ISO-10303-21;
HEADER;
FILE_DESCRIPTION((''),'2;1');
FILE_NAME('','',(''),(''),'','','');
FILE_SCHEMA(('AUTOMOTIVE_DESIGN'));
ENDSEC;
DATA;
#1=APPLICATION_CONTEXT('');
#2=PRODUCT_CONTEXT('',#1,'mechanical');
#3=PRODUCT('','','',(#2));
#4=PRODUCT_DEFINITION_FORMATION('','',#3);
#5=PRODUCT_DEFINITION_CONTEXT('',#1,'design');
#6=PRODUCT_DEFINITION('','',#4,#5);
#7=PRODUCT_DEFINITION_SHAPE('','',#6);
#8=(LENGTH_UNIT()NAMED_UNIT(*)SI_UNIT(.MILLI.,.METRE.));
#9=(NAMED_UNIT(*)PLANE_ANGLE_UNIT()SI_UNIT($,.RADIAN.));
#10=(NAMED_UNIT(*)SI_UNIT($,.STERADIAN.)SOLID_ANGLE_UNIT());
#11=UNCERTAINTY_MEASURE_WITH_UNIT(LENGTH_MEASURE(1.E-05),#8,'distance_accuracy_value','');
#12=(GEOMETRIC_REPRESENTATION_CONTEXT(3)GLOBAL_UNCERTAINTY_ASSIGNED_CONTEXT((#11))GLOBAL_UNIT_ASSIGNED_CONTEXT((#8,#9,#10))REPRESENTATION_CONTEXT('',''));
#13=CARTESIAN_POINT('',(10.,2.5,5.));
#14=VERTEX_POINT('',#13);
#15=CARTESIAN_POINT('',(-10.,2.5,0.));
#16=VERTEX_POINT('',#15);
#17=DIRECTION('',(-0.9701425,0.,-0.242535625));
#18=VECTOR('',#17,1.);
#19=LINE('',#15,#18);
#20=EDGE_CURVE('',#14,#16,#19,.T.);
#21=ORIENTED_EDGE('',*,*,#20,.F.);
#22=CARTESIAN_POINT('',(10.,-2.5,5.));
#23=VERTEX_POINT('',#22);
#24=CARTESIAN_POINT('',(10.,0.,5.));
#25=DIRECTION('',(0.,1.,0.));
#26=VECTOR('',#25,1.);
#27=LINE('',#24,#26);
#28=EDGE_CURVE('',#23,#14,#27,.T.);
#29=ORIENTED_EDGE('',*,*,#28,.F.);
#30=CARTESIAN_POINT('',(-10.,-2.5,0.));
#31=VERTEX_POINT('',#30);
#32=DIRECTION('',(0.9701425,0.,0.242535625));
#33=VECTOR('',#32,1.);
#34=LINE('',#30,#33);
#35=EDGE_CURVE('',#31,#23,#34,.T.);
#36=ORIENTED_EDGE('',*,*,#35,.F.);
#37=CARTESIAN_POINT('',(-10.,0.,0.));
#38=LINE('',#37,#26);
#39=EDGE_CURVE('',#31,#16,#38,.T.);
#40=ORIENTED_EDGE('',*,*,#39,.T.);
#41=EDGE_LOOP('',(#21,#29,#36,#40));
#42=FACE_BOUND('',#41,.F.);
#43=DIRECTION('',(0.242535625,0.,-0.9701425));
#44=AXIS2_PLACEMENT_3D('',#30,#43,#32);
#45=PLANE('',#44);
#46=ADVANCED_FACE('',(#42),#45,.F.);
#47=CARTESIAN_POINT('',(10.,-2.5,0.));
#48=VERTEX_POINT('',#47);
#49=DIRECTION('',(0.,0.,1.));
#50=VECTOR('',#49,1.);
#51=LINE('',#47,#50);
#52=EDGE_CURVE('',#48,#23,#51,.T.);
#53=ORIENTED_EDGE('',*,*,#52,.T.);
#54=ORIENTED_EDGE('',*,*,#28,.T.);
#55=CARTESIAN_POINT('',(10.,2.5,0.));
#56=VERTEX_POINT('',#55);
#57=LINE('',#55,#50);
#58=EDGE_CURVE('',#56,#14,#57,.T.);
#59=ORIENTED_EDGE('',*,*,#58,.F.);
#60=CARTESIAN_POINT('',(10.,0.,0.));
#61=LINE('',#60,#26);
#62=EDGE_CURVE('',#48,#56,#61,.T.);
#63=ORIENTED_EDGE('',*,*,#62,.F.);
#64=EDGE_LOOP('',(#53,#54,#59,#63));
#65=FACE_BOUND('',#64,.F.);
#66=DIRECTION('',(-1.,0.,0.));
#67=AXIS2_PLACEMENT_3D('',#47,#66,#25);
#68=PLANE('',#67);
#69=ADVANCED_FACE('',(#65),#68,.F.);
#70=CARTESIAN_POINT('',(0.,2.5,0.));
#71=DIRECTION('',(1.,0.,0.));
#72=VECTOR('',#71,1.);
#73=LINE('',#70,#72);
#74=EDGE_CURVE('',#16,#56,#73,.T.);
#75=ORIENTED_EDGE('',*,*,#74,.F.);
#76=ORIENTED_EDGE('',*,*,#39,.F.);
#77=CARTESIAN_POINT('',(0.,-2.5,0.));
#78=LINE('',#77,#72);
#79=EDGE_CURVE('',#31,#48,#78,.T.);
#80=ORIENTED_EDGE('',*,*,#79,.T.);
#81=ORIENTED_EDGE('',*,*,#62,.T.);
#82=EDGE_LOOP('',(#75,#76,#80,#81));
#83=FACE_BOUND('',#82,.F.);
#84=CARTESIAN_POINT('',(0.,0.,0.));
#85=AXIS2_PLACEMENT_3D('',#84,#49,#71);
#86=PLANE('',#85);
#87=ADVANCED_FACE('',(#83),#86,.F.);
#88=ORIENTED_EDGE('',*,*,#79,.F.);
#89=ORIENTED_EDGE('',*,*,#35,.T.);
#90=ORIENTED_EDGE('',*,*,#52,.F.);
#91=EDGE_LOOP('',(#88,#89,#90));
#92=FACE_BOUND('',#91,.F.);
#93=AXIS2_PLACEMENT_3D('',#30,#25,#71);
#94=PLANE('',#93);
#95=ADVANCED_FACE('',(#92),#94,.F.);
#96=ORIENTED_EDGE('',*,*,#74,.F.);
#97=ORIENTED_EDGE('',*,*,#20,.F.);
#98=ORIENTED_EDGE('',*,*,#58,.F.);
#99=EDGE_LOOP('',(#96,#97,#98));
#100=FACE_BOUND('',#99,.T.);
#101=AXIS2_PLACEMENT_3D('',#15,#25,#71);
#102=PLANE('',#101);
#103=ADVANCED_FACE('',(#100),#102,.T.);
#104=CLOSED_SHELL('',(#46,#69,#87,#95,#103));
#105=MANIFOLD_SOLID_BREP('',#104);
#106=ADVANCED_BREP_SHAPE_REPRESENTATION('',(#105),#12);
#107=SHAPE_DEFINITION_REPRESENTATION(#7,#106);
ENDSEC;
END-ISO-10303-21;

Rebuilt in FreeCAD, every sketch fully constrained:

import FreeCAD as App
import Part
import Sketcher
from FreeCAD import Vector
Q = App.Units.Quantity


def add_polygon(sketch, points):
    """Adds a closed chain of lines whose ends are joined by coincident constraints."""
    first, n = sketch.GeometryCount, len(points)
    for a, b in zip(points, points[1:] + points[:1]):
        sketch.addGeometry(Part.LineSegment(App.Vector(*a, 0), App.Vector(*b, 0)), False)
    for i in range(n):
        sketch.addConstraint(Sketcher.Constraint("Coincident", first + i, 2, first + (i + 1) % n, 1))

doc = App.newDocument("Part")
body = doc.addObject("PartDesign::Body", "Body")

sketch1 = body.newObject("Sketcher::SketchObject", "Sketch")
sketch1.AttachmentSupport = (doc.getObject("XY_Plane"), [""])
sketch1.MapMode = "FlatFace"
add_polygon(sketch1, [(-10, 2.5), (-10, -2.5), (10, -2.5), (10, 2.5)])
sketch1.addConstraint([
    Sketcher.Constraint("Vertical", 0),
    Sketcher.Constraint("Horizontal", 1),
    Sketcher.Constraint("Vertical", 2),
    Sketcher.Constraint("Horizontal", 3),
    Sketcher.Constraint("Symmetric", 0, 2, 2, 2, -1, 1),
    Sketcher.Constraint("DistanceX", 1, 1, 1, 2, Q("20 mm")),
    Sketcher.Constraint("DistanceY", 0, 2, 0, 1, Q("5 mm")),
])
pad1 = body.newObject("PartDesign::Pad", "Pad")
pad1.Profile = sketch1
pad1.Length = 5

sketch2 = body.newObject("Sketcher::SketchObject", "Sketch001")
sketch2.AttachmentSupport = (doc.getObject("XZ_Plane"), [""])
sketch2.MapMode = "FlatFace"
sketch2.AttachmentOffset = App.Placement(Vector(0, 0, 2.5), App.Rotation())
add_polygon(sketch2, [(-10, 5), (-10, 0), (10, 5)])
sketch2.addConstraint([
    Sketcher.Constraint("Vertical", 0),
    Sketcher.Constraint("Horizontal", 2),
    Sketcher.Constraint("PointOnObject", 0, 2, -1),
    Sketcher.Constraint("DistanceX", 2, 2, 2, 1, Q("20 mm")),
    Sketcher.Constraint("DistanceY", 0, 2, 0, 1, Q("5 mm")),
    Sketcher.Constraint("DistanceX", 0, 2, -1, 1, Q("10 mm")),
])
pocket1 = body.newObject("PartDesign::Pocket", "Pocket")
pocket1.Profile = sketch2
pocket1.Length = 25

doc.recompute()
